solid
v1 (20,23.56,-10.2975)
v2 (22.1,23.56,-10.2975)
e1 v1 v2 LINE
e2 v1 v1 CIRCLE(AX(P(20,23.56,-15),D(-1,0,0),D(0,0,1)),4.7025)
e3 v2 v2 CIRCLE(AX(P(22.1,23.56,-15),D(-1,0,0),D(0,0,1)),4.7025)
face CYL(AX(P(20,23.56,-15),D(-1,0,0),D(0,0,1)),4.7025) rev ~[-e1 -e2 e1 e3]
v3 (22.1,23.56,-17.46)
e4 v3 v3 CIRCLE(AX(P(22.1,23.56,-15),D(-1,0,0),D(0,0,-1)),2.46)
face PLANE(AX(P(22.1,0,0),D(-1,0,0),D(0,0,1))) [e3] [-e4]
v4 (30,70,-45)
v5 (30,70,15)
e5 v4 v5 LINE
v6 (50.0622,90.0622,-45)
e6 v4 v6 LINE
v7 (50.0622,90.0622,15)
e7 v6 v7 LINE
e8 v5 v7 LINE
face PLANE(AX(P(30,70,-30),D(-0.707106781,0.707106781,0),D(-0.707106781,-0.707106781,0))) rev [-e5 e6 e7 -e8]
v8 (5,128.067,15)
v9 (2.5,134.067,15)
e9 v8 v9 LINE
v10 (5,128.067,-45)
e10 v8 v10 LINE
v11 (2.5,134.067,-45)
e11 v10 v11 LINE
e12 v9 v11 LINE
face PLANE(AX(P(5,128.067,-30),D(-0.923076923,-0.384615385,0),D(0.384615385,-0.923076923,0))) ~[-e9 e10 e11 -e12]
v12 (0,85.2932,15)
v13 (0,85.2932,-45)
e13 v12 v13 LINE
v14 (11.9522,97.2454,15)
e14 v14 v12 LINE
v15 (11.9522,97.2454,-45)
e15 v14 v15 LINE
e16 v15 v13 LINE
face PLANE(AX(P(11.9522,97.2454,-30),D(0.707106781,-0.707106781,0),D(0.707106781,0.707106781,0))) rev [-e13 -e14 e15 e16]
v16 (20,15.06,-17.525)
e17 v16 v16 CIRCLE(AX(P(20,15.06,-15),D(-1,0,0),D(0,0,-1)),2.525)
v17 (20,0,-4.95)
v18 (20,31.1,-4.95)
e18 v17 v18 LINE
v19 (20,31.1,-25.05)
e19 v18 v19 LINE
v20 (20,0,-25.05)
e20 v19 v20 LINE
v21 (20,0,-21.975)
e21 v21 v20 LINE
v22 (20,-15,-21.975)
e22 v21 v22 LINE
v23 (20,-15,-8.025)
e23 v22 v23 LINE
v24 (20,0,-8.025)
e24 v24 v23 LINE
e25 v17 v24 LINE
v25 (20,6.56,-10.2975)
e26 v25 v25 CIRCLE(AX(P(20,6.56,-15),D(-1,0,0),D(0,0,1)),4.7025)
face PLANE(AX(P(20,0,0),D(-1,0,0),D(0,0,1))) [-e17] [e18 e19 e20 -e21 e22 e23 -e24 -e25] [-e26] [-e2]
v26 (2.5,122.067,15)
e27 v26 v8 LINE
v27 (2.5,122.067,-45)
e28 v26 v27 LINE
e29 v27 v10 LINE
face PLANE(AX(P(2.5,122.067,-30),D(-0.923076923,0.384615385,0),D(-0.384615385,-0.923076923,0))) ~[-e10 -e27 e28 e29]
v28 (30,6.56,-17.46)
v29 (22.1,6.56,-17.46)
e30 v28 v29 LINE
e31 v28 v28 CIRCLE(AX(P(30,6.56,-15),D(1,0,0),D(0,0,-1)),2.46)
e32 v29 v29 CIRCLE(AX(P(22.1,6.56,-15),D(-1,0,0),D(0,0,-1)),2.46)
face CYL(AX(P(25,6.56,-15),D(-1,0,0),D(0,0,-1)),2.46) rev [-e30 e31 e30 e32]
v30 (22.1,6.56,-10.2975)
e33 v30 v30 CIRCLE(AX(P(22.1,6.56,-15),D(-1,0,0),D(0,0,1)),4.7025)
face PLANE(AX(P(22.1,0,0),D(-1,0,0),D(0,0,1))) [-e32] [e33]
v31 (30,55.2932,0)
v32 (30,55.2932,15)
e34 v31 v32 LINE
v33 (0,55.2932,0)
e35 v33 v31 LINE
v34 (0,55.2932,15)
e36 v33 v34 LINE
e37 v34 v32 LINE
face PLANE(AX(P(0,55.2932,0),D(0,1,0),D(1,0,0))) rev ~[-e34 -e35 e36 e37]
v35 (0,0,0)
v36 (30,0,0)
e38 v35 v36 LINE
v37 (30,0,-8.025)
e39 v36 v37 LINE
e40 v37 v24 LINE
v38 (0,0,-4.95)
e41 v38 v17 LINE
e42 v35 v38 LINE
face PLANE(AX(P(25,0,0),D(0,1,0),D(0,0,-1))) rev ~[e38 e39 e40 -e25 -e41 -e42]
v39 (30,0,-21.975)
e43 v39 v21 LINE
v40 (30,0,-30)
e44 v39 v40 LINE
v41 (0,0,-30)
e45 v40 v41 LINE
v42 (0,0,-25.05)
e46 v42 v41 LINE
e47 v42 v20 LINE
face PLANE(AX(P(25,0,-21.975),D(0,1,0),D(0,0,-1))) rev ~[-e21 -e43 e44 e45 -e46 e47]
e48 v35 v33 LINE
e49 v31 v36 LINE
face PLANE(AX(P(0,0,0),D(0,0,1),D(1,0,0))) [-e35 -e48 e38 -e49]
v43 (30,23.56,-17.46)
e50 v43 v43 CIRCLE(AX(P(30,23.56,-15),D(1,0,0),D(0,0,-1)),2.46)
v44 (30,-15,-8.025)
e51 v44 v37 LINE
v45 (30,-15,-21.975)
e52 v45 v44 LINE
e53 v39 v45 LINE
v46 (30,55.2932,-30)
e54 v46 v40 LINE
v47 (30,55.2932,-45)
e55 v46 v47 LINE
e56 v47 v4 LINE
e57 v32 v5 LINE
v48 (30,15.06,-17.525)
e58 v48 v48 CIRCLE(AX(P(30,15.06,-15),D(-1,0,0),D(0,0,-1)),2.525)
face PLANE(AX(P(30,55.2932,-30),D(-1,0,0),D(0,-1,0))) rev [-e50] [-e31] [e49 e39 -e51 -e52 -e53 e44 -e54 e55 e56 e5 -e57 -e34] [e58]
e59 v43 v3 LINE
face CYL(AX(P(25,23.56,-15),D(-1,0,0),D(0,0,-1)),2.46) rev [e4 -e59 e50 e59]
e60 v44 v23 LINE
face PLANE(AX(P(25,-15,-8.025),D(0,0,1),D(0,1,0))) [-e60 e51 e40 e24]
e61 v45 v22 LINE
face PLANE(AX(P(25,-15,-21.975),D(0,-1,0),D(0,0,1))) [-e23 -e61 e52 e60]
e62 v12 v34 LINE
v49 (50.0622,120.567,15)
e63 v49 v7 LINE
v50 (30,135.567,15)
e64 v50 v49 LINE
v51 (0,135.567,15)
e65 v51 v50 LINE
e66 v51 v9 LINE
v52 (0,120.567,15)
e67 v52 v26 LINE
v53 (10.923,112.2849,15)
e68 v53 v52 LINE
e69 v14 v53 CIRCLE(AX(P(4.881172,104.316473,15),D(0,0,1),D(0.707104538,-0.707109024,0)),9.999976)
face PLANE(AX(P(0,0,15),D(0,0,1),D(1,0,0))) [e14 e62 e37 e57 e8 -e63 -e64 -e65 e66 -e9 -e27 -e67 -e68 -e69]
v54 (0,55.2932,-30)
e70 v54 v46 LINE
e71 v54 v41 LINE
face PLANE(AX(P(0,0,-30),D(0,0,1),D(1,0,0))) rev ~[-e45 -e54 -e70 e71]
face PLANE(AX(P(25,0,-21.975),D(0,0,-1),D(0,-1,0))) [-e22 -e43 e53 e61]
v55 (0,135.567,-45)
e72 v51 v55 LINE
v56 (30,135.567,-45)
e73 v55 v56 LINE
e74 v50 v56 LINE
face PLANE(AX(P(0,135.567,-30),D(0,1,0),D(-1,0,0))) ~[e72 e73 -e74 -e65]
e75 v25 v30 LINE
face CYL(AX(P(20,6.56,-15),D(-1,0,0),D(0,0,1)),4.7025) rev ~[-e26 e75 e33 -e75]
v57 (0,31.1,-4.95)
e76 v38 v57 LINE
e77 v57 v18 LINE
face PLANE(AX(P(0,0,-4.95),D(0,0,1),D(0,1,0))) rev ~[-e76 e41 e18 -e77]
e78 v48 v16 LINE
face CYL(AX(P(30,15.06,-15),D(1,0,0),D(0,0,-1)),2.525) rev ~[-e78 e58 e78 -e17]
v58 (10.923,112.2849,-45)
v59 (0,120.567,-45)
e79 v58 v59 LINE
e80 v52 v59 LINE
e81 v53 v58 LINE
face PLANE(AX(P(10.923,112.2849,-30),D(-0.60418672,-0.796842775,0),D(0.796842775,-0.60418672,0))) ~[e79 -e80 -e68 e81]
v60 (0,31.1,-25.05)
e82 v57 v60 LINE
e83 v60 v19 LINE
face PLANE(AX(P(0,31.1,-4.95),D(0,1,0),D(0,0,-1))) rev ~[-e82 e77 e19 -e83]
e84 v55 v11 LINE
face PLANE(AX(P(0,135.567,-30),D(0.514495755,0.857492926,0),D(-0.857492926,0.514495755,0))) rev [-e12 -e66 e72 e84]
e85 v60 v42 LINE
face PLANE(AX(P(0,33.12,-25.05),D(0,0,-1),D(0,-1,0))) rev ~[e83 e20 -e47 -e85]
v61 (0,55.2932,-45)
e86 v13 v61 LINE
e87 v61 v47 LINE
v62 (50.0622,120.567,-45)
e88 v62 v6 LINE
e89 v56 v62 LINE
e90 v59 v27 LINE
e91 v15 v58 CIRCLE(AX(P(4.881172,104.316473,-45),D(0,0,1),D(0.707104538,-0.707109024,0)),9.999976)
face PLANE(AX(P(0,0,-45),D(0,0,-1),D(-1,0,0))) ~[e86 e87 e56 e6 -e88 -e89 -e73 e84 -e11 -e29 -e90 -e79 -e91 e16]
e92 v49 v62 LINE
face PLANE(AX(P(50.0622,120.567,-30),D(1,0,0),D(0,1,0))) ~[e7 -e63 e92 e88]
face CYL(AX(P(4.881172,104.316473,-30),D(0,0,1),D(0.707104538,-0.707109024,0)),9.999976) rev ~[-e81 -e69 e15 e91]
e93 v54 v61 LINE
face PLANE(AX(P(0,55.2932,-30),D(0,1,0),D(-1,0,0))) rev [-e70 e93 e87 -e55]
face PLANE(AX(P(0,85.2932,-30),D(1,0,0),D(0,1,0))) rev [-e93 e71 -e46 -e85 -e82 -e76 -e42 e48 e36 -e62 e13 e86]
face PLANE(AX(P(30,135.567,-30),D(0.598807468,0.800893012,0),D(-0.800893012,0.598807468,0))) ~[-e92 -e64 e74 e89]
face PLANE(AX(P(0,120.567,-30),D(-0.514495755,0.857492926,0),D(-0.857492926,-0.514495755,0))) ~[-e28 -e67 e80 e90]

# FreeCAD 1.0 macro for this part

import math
import FreeCAD as App
import Part
import Sketcher

V = App.Vector
Q = App.Units.Quantity

doc = App.newDocument("Part")
params = doc.addObject("Spreadsheet::Sheet", "Params")
for row, (alias, value) in enumerate([
    ("sketch1_width", "25 mm"),
    ("sketch1_height", "40 mm"),
    ("pad1_length", "30 mm"),
    ("sketch2_diameter", "4.92 mm"),
    ("pocket1_length", "30 mm"),
    ("sketch3_height", "20.1 mm"),
    ("sketch3_width", "33.12 mm"),
    ("pocket2_length", "20 mm"),
    ("sketch4_height", "13.95 mm"),
    ("sketch4_width", "5 mm"),
    ("pad2_length", "15 mm"),
    ("sketch5_diameter", "4.92 mm"),
    ("pocket3_length", "2.1 mm"),
    ("sketch6_diameter", "4.92 mm"),
    ("pocket4_length", "10 mm"),
    ("sketch7_diameter", "4.92 mm"),
    ("pocket5_length", "2.1 mm"),
    ("sketch8_diameter", "4.92 mm"),
    ("sketch8_width", "40 mm"),
    ("sketch8_width2", "15 mm"),
    ("sketch8_height", "30 mm"),
    ("sketch8_height2", "13.95 mm"),
    ("pad3_length", "5 mm"),
    ("sketch9_width", "30 mm"),
    ("pad4_length", "30 mm"),
    ("sketch10_diameter", "5.05 mm"),
    ("pocket6_length", "30 mm"),
    ("sketch11_width", "2.02 mm"),
    ("sketch11_height", "20.1 mm"),
    ("pad5_length", "20 mm"),
    ("sketch12_radius", "10 mm"),
    ("sketch12_width", "30 mm"),
    ("sketch12_length", "6.5 mm"),
    ("pad6_length", "30 mm"),
    ("sketch13_width", "30 mm"),
    ("sketch13_radius", "10 mm"),
    ("sketch13_length", "6.5 mm"),
    ("pad7_length", "15 mm"),
], start=1):
    params.set(f"A{row}", alias)
    params.set(f"B{row}", "=" + value)
    params.setAlias(f"B{row}", alias)

body = doc.addObject("PartDesign::Body", "Body")

# Sketch on XY plane
sketch1 = body.newObject("Sketcher::SketchObject", "Sketch")
sketch1.AttachmentSupport = (doc.getObject("XY_Plane"), [""])
sketch1.MapMode = "FlatFace"
sketch1.addGeometry(Part.LineSegment(V(0, 40, 0), V(0, 0, 0)), False)
sketch1.addGeometry(Part.LineSegment(V(0, 0, 0), V(25, 0, 0)), False)
sketch1.addGeometry(Part.LineSegment(V(25, 0, 0), V(25, 40, 0)), False)
sketch1.addGeometry(Part.LineSegment(V(25, 40, 0), V(0, 40, 0)), False)
sketch1.addConstraint(Sketcher.Constraint("Coincident", 0, 2, 1, 1))
sketch1.addConstraint(Sketcher.Constraint("Coincident", 1, 2, 2, 1))
sketch1.addConstraint(Sketcher.Constraint("Coincident", 2, 2, 3, 1))
sketch1.addConstraint(Sketcher.Constraint("Coincident", 3, 2, 0, 1))
sketch1.addConstraint(Sketcher.Constraint("Vertical", 0))
sketch1.addConstraint(Sketcher.Constraint("Horizontal", 1))
sketch1.addConstraint(Sketcher.Constraint("Vertical", 2))
sketch1.addConstraint(Sketcher.Constraint("Horizontal", 3))
sketch1.addConstraint(Sketcher.Constraint("Coincident", 0, 2, -1, 1))
sketch1.addConstraint(Sketcher.Constraint("DistanceX", 1, 1, 1, 2, Q("25 mm")))
sketch1.addConstraint(Sketcher.Constraint("DistanceY", 0, 2, 0, 1, Q("40 mm")))
sketch1.setExpression("Constraints[9]", "Params.sketch1_width")
sketch1.setExpression("Constraints[10]", "Params.sketch1_height")
pad1 = body.newObject("PartDesign::Pad", "Pad")
pad1.Profile = sketch1
pad1.setExpression("Length", "Params.pad1_length")
pad1.Reversed = True

# Sketch on YZ plane
sketch2 = body.newObject("Sketcher::SketchObject", "Sketch001")
sketch2.AttachmentSupport = (doc.getObject("YZ_Plane"), [""])
sketch2.MapMode = "FlatFace"
sketch2.AttachmentOffset = App.Placement(V(0, 0, 25), App.Rotation())
sketch2.addGeometry(Part.Circle(V(6.56, -15, 0), V(0, 0, 1), 2.46), False)
sketch2.addConstraint(Sketcher.Constraint("Diameter", 0, Q("4.92 mm")))
sketch2.addConstraint(Sketcher.Constraint("DistanceY", 0, 3, -1, 1, Q("15 mm")))
sketch2.addConstraint(Sketcher.Constraint("DistanceX", -1, 1, 0, 3, Q("6.56 mm")))
sketch2.setExpression("Constraints[0]", "Params.sketch2_diameter")
pocket1 = body.newObject("PartDesign::Pocket", "Pocket")
pocket1.Profile = sketch2
pocket1.setExpression("Length", "Params.pocket1_length")

# Sketch on YZ plane
sketch3 = body.newObject("Sketcher::SketchObject", "Sketch002")
sketch3.AttachmentSupport = (doc.getObject("YZ_Plane"), [""])
sketch3.MapMode = "FlatFace"
sketch3.addGeometry(Part.LineSegment(V(0, -25.05, 0), V(0, -4.95, 0)), False)
sketch3.addGeometry(Part.LineSegment(V(0, -4.95, 0), V(33.12, -4.95, 0)), False)
sketch3.addGeometry(Part.LineSegment(V(33.12, -4.95, 0), V(33.12, -25.05, 0)), False)
sketch3.addGeometry(Part.LineSegment(V(33.12, -25.05, 0), V(0, -25.05, 0)), False)
sketch3.addConstraint(Sketcher.Constraint("Coincident", 0, 2, 1, 1))
sketch3.addConstraint(Sketcher.Constraint("Coincident", 1, 2, 2, 1))
sketch3.addConstraint(Sketcher.Constraint("Coincident", 2, 2, 3, 1))
sketch3.addConstraint(Sketcher.Constraint("Coincident", 3, 2, 0, 1))
sketch3.addConstraint(Sketcher.Constraint("Vertical", 0))
sketch3.addConstraint(Sketcher.Constraint("Horizontal", 1))
sketch3.addConstraint(Sketcher.Constraint("Vertical", 2))
sketch3.addConstraint(Sketcher.Constraint("Horizontal", 3))
sketch3.addConstraint(Sketcher.Constraint("PointOnObject", 0, 2, -2))
sketch3.addConstraint(Sketcher.Constraint("DistanceY", 0, 1, 0, 2, Q("20.1 mm")))
sketch3.addConstraint(Sketcher.Constraint("DistanceX", 1, 1, 1, 2, Q("33.12 mm")))
sketch3.addConstraint(Sketcher.Constraint("DistanceY", 0, 2, -1, 1, Q("4.95 mm")))
sketch3.setExpression("Constraints[9]", "Params.sketch3_height")
sketch3.setExpression("Constraints[10]", "Params.sketch3_width")
pocket2 = body.newObject("PartDesign::Pocket", "Pocket001")
pocket2.Profile = sketch3
pocket2.setExpression("Length", "Params.pocket2_length")
pocket2.Reversed = True

# Sketch on XZ plane
sketch4 = body.newObject("Sketcher::SketchObject", "Sketch003")
sketch4.AttachmentSupport = (doc.getObject("XZ_Plane"), [""])
sketch4.MapMode = "FlatFace"
sketch4.addGeometry(Part.LineSegment(V(25, -8.025, 0), V(20, -8.025, 0)), False)
sketch4.addGeometry(Part.LineSegment(V(20, -8.025, 0), V(20, -21.975, 0)), False)
sketch4.addGeometry(Part.LineSegment(V(20, -21.975, 0), V(25, -21.975, 0)), False)
sketch4.addGeometry(Part.LineSegment(V(25, -21.975, 0), V(25, -8.025, 0)), False)
sketch4.addConstraint(Sketcher.Constraint("Coincident", 0, 2, 1, 1))
sketch4.addConstraint(Sketcher.Constraint("Coincident", 1, 2, 2, 1))
sketch4.addConstraint(Sketcher.Constraint("Coincident", 2, 2, 3, 1))
sketch4.addConstraint(Sketcher.Constraint("Coincident", 3, 2, 0, 1))
sketch4.addConstraint(Sketcher.Constraint("Horizontal", 0))
sketch4.addConstraint(Sketcher.Constraint("Vertical", 1))
sketch4.addConstraint(Sketcher.Constraint("Horizontal", 2))
sketch4.addConstraint(Sketcher.Constraint("Vertical", 3))
sketch4.addConstraint(Sketcher.Constraint("DistanceY", 1, 2, 1, 1, Q("13.95 mm")))
sketch4.addConstraint(Sketcher.Constraint("DistanceX", 0, 2, 0, 1, Q("5 mm")))
sketch4.addConstraint(Sketcher.Constraint("DistanceX", -1, 1, 0, 2, Q("20 mm")))
sketch4.addConstraint(Sketcher.Constraint("DistanceY", 0, 2, -1, 1, Q("8.025 mm")))
sketch4.setExpression("Constraints[8]", "Params.sketch4_height")
sketch4.setExpression("Constraints[9]", "Params.sketch4_width")
pad2 = body.newObject("PartDesign::Pad", "Pad001")
pad2.Profile = sketch4
pad2.setExpression("Length", "Params.pad2_length")

# Sketch on YZ plane
sketch5 = body.newObject("Sketcher::SketchObject", "Sketch004")
sketch5.AttachmentSupport = (doc.getObject("YZ_Plane"), [""])
sketch5.MapMode = "FlatFace"
sketch5.AttachmentOffset = App.Placement(V(0, 0, 20), App.Rotation())
sketch5.addGeometry(Part.Circle(V(6.56, -15, 0), V(0, 0, 1), 4.7025), False)
sketch5.addGeometry(Part.Circle(V(6.56, -15, 0), V(0, 0, 1), 2.46), False)
sketch5.addConstraint(Sketcher.Constraint("Coincident", 1, 3, 0, 3))
sketch5.addConstraint(Sketcher.Constraint("Diameter", 0, Q("9.405 mm")))
sketch5.addConstraint(Sketcher.Constraint("Diameter", 1, Q("4.92 mm")))
sketch5.addConstraint(Sketcher.Constraint("DistanceY", 0, 3, -1, 1, Q("15 mm")))
sketch5.addConstraint(Sketcher.Constraint("DistanceX", -1, 1, 0, 3, Q("6.56 mm")))
sketch5.setExpression("Constraints[2]", "Params.sketch5_diameter")
pocket3 = body.newObject("PartDesign::Pocket", "Pocket002")
pocket3.Profile = sketch5
pocket3.setExpression("Length", "Params.pocket3_length")
pocket3.Reversed = True

# Sketch on YZ plane
sketch6 = body.newObject("Sketcher::SketchObject", "Sketch005")
sketch6.AttachmentSupport = (doc.getObject("YZ_Plane"), [""])
sketch6.MapMode = "FlatFace"
sketch6.AttachmentOffset = App.Placement(V(0, 0, 25), App.Rotation())
sketch6.addGeometry(Part.Circle(V(23.56, -15, 0), V(0, 0, 1), 2.46), False)
sketch6.addConstraint(Sketcher.Constraint("Diameter", 0, Q("4.92 mm")))
sketch6.addConstraint(Sketcher.Constraint("DistanceY", 0, 3, -1, 1, Q("15 mm")))
sketch6.addConstraint(Sketcher.Constraint("DistanceX", -1, 1, 0, 3, Q("23.56 mm")))
sketch6.setExpression("Constraints[0]", "Params.sketch6_diameter")
pocket4 = body.newObject("PartDesign::Pocket", "Pocket003")
pocket4.Profile = sketch6
pocket4.setExpression("Length", "Params.pocket4_length")

# Sketch on YZ plane
sketch7 = body.newObject("Sketcher::SketchObject", "Sketch006")
sketch7.AttachmentSupport = (doc.getObject("YZ_Plane"), [""])
sketch7.MapMode = "FlatFace"
sketch7.AttachmentOffset = App.Placement(V(0, 0, 20), App.Rotation())
sketch7.addGeometry(Part.Circle(V(23.56, -15, 0), V(0, 0, 1), 4.7025), False)
sketch7.addGeometry(Part.Circle(V(23.56, -15, 0), V(0, 0, 1), 2.46), False)
sketch7.addConstraint(Sketcher.Constraint("Coincident", 1, 3, 0, 3))
sketch7.addConstraint(Sketcher.Constraint("Diameter", 0, Q("9.405 mm")))
sketch7.addConstraint(Sketcher.Constraint("Diameter", 1, Q("4.92 mm")))
sketch7.addConstraint(Sketcher.Constraint("DistanceY", 0, 3, -1, 1, Q("15 mm")))
sketch7.addConstraint(Sketcher.Constraint("DistanceX", -1, 1, 0, 3, Q("23.56 mm")))
sketch7.setExpression("Constraints[2]", "Params.sketch7_diameter")
pocket5 = body.newObject("PartDesign::Pocket", "Pocket004")
pocket5.Profile = sketch7
pocket5.setExpression("Length", "Params.pocket5_length")
pocket5.Reversed = True

# Sketch on YZ plane
sketch8 = body.newObject("Sketcher::SketchObject", "Sketch007")
sketch8.AttachmentSupport = (doc.getObject("YZ_Plane"), [""])
sketch8.MapMode = "FlatFace"
sketch8.AttachmentOffset = App.Placement(V(0, 0, 25), App.Rotation())
sketch8.addGeometry(Part.LineSegment(V(0, -30, 0), V(40, -30, 0)), False)
sketch8.addGeometry(Part.LineSegment(V(40, -30, 0), V(40, 0, 0)), False)
sketch8.addGeometry(Part.LineSegment(V(40, 0, 0), V(0, 0, 0)), False)
sketch8.addGeometry(Part.LineSegment(V(0, 0, 0), V(0, -8.025, 0)), False)
sketch8.addGeometry(Part.LineSegment(V(0, -8.025, 0), V(-15, -8.025, 0)), False)
sketch8.addGeometry(Part.LineSegment(V(-15, -8.025, 0), V(-15, -21.975, 0)), False)
sketch8.addGeometry(Part.LineSegment(V(-15, -21.975, 0), V(0, -21.975, 0)), False)
sketch8.addGeometry(Part.LineSegment(V(0, -21.975, 0), V(0, -30, 0)), False)
sketch8.addGeometry(Part.Circle(V(6.56, -15, 0), V(0, 0, 1), 2.46), False)
sketch8.addGeometry(Part.Circle(V(23.56, -15, 0), V(0, 0, 1), 2.46), False)
sketch8.addConstraint(Sketcher.Constraint("Coincident", 0, 2, 1, 1))
sketch8.addConstraint(Sketcher.Constraint("Coincident", 1, 2, 2, 1))
sketch8.addConstraint(Sketcher.Constraint("Coincident", 2, 2, 3, 1))
sketch8.addConstraint(Sketcher.Constraint("Coincident", 3, 2, 4, 1))
sketch8.addConstraint(Sketcher.Constraint("Coincident", 4, 2, 5, 1))
sketch8.addConstraint(Sketcher.Constraint("Coincident", 5, 2, 6, 1))
sketch8.addConstraint(Sketcher.Constraint("Coincident", 6, 2, 7, 1))
sketch8.addConstraint(Sketcher.Constraint("Coincident", 7, 2, 0, 1))
sketch8.addConstraint(Sketcher.Constraint("Horizontal", 0))
sketch8.addConstraint(Sketcher.Constraint("Vertical", 1))
sketch8.addConstraint(Sketcher.Constraint("Horizontal", 2))
sketch8.addConstraint(Sketcher.Constraint("Vertical", 3))
sketch8.addConstraint(Sketcher.Constraint("Horizontal", 4))
sketch8.addConstraint(Sketcher.Constraint("Vertical", 5))
sketch8.addConstraint(Sketcher.Constraint("Horizontal", 6))
sketch8.addConstraint(Sketcher.Constraint("Vertical", 7))
sketch8.addConstraint(Sketcher.Constraint("Coincident", 2, 2, -1, 1))
sketch8.addConstraint(Sketcher.Constraint("Equal", 8, 9))
sketch8.addConstraint(Sketcher.Constraint("PointOnObject", 6, 2, -2))
sketch8.addConstraint(Sketcher.Constraint("Horizontal", 8, 3, 9, 3))
sketch8.addConstraint(Sketcher.Constraint("Equal", 3, 7))
sketch8.addConstraint(Sketcher.Constraint("Diameter", 8, Q("4.92 mm")))
sketch8.addConstraint(Sketcher.Constraint("DistanceX", 0, 1, 0, 2, Q("40 mm")))
sketch8.addConstraint(Sketcher.Constraint("DistanceX", 4, 2, 4, 1, Q("15 mm")))
sketch8.addConstraint(Sketcher.Constraint("DistanceY", 1, 1, 1, 2, Q("30 mm")))
sketch8.addConstraint(Sketcher.Constraint("DistanceY", 8, 3, -1, 1, Q("15 mm")))
sketch8.addConstraint(Sketcher.Constraint("DistanceX", 8, 3, 9, 3, Q("17 mm")))
sketch8.addConstraint(Sketcher.Constraint("DistanceY", 5, 2, 5, 1, Q("13.95 mm")))
sketch8.addConstraint(Sketcher.Constraint("DistanceX", -1, 1, 8, 3, Q("6.56 mm")))
sketch8.setExpression("Constraints[21]", "Params.sketch8_diameter")
sketch8.setExpression("Constraints[22]", "Params.sketch8_width")
sketch8.setExpression("Constraints[23]", "Params.sketch8_width2")
sketch8.setExpression("Constraints[24]", "Params.sketch8_height")
sketch8.setExpression("Constraints[27]", "Params.sketch8_height2")
pad3 = body.newObject("PartDesign::Pad", "Pad002")
pad3.Profile = sketch8
pad3.setExpression("Length", "Params.pad3_length")

# Sketch on XZ plane
sketch9 = body.newObject("Sketcher::SketchObject", "Sketch008")
sketch9.AttachmentSupport = (doc.getObject("XZ_Plane"), [""])
sketch9.MapMode = "FlatFace"
sketch9.AttachmentOffset = App.Placement(V(0, 0, -40), App.Rotation())
sketch9.addGeometry(Part.LineSegment(V(30, -30, 0), V(0, -30, 0)), False)
sketch9.addGeometry(Part.LineSegment(V(0, -30, 0), V(0, 0, 0)), False)
sketch9.addGeometry(Part.LineSegment(V(0, 0, 0), V(30, 0, 0)), False)
sketch9.addGeometry(Part.LineSegment(V(30, 0, 0), V(30, -30, 0)), False)
sketch9.addConstraint(Sketcher.Constraint("Coincident", 0, 2, 1, 1))
sketch9.addConstraint(Sketcher.Constraint("Coincident", 1, 2, 2, 1))
sketch9.addConstraint(Sketcher.Constraint("Coincident", 2, 2, 3, 1))
sketch9.addConstraint(Sketcher.Constraint("Coincident", 3, 2, 0, 1))
sketch9.addConstraint(Sketcher.Constraint("Horizontal", 0))
sketch9.addConstraint(Sketcher.Constraint("Vertical", 1))
sketch9.addConstraint(Sketcher.Constraint("Horizontal", 2))
sketch9.addConstraint(Sketcher.Constraint("Vertical", 3))
sketch9.addConstraint(Sketcher.Constraint("Coincident", 1, 2, -1, 1))
sketch9.addConstraint(Sketcher.Constraint("Equal", 2, 1))
sketch9.addConstraint(Sketcher.Constraint("DistanceX", 0, 2, 0, 1, Q("30 mm")))
sketch9.setExpression("Constraints[10]", "Params.sketch9_width")
pad4 = body.newObject("PartDesign::Pad", "Pad003")
pad4.Profile = sketch9
pad4.setExpression("Length", "Params.pad4_length")
pad4.Reversed = True

# Sketch on YZ plane
sketch10 = body.newObject("Sketcher::SketchObject", "Sketch009")
sketch10.AttachmentSupport = (doc.getObject("YZ_Plane"), [""])
sketch10.MapMode = "FlatFace"
sketch10.AttachmentOffset = App.Placement(V(0, 0, 30), App.Rotation())
sketch10.addGeometry(Part.Circle(V(15.06, -15, 0), V(0, 0, 1), 2.525), False)
sketch10.addConstraint(Sketcher.Constraint("Diameter", 0, Q("5.05 mm")))
sketch10.addConstraint(Sketcher.Constraint("DistanceY", 0, 3, -1, 1, Q("15 mm")))
sketch10.addConstraint(Sketcher.Constraint("DistanceX", -1, 1, 0, 3, Q("15.06 mm")))
sketch10.setExpression("Constraints[0]", "Params.sketch10_diameter")
pocket6 = body.newObject("PartDesign::Pocket", "Pocket005")
pocket6.Profile = sketch10
pocket6.setExpression("Length", "Params.pocket6_length")

# Sketch on YZ plane
sketch11 = body.newObject("Sketcher::SketchObject", "Sketch010")
sketch11.AttachmentSupport = (doc.getObject("YZ_Plane"), [""])
sketch11.MapMode = "FlatFace"
sketch11.addGeometry(Part.LineSegment(V(33.12, -4.95, 0), V(33.12, -25.05, 0)), False)
sketch11.addGeometry(Part.LineSegment(V(33.12, -25.05, 0), V(31.1, -25.05, 0)), False)
sketch11.addGeometry(Part.LineSegment(V(31.1, -25.05, 0), V(31.1, -4.95, 0)), False)
sketch11.addGeometry(Part.LineSegment(V(31.1, -4.95, 0), V(33.12, -4.95, 0)), False)
sketch11.addConstraint(Sketcher.Constraint("Coincident", 0, 2, 1, 1))
sketch11.addConstraint(Sketcher.Constraint("Coincident", 1, 2, 2, 1))
sketch11.addConstraint(Sketcher.Constraint("Coincident", 2, 2, 3, 1))
sketch11.addConstraint(Sketcher.Constraint("Coincident", 3, 2, 0, 1))
sketch11.addConstraint(Sketcher.Constraint("Vertical", 0))
sketch11.addConstraint(Sketcher.Constraint("Horizontal", 1))
sketch11.addConstraint(Sketcher.Constraint("Vertical", 2))
sketch11.addConstraint(Sketcher.Constraint("Horizontal", 3))
sketch11.addConstraint(Sketcher.Constraint("DistanceX", 1, 2, 1, 1, Q("2.02 mm")))
sketch11.addConstraint(Sketcher.Constraint("DistanceY", 0, 2, 0, 1, Q("20.1 mm")))
sketch11.addConstraint(Sketcher.Constraint("DistanceX", -1, 1, 1, 2, Q("31.1 mm")))
sketch11.addConstraint(Sketcher.Constraint("DistanceY", 0, 2, -1, 1, Q("25.05 mm")))
sketch11.setExpression("Constraints[8]", "Params.sketch11_width")
sketch11.setExpression("Constraints[9]", "Params.sketch11_height")
pad5 = body.newObject("PartDesign::Pad", "Pad004")
pad5.Profile = sketch11
pad5.setExpression("Length", "Params.pad5_length")

# Sketch on XY plane
sketch12 = body.newObject("Sketcher::SketchObject", "Sketch011")
sketch12.AttachmentSupport = (doc.getObject("XY_Plane"), [""])
sketch12.MapMode = "FlatFace"
sketch12.addGeometry(Part.LineSegment(V(0, 85.2932, 0), V(0, 70, 0)), False)
sketch12.addGeometry(Part.LineSegment(V(0, 70, 0), V(30, 70, 0)), False)
sketch12.addGeometry(Part.LineSegment(V(30, 70, 0), V(50.0622, 90.0622, 0)), False)
sketch12.addGeometry(Part.LineSegment(V(50.0622, 90.0622, 0), V(50.0622, 120.567, 0)), False)
sketch12.addGeometry(Part.LineSegment(V(50.0622, 120.567, 0), V(30, 135.567, 0)), False)
sketch12.addGeometry(Part.LineSegment(V(30, 135.567, 0), V(0, 135.567, 0)), False)
sketch12.addGeometry(Part.LineSegment(V(0, 135.567, 0), V(2.5, 134.067, 0)), False)
sketch12.addGeometry(Part.LineSegment(V(2.5, 134.067, 0), V(5, 128.067, 0)), False)
sketch12.addGeometry(Part.LineSegment(V(5, 128.067, 0), V(2.5, 122.067, 0)), False)
sketch12.addGeometry(Part.LineSegment(V(2.5, 122.067, 0), V(0, 120.567, 0)), False)
sketch12.addGeometry(Part.LineSegment(V(0, 120.567, 0), V(10.923, 112.2849, 0)), False)
sketch12.addGeometry(Part.ArcOfCircle(Part.Circle(V(4.8811, 104.3165, 0), V(0, 0, 1), 10.000046), math.radians(-45), math.radians(52.829413)), False)
sketch12.addGeometry(Part.LineSegment(V(11.9522, 97.2454, 0), V(0, 85.2932, 0)), False)
sketch12.addConstraint(Sketcher.Constraint("Coincident", 0, 2, 1, 1))
sketch12.addConstraint(Sketcher.Constraint("Coincident", 1, 2, 2, 1))
sketch12.addConstraint(Sketcher.Constraint("Coincident", 2, 2, 3, 1))
sketch12.addConstraint(Sketcher.Constraint("Coincident", 3, 2, 4, 1))
sketch12.addConstraint(Sketcher.Constraint("Coincident", 4, 2, 5, 1))
sketch12.addConstraint(Sketcher.Constraint("Coincident", 5, 2, 6, 1))
sketch12.addConstraint(Sketcher.Constraint("Coincident", 6, 2, 7, 1))
sketch12.addConstraint(Sketcher.Constraint("Coincident", 7, 2, 8, 1))
sketch12.addConstraint(Sketcher.Constraint("Coincident", 8, 2, 9, 1))
sketch12.addConstraint(Sketcher.Constraint("Coincident", 9, 2, 10, 1))
sketch12.addConstraint(Sketcher.Constraint("Tangent", 10, 2, 11, 2))
sketch12.addConstraint(Sketcher.Constraint("Tangent", 11, 1, 12, 1))
sketch12.addConstraint(Sketcher.Constraint("Coincident", 12, 2, 0, 1))
sketch12.addConstraint(Sketcher.Constraint("Vertical", 0))
sketch12.addConstraint(Sketcher.Constraint("Horizontal", 1))
sketch12.addConstraint(Sketcher.Constraint("Vertical", 3))
sketch12.addConstraint(Sketcher.Constraint("Horizontal", 5))
sketch12.addConstraint(Sketcher.Constraint("PointOnObject", 0, 2, -2))
sketch12.addConstraint(Sketcher.Constraint("PointOnObject", 5, 2, -2))
sketch12.addConstraint(Sketcher.Constraint("PointOnObject", 9, 2, -2))
sketch12.addConstraint(Sketcher.Constraint("Parallel", 2, 12))
sketch12.addConstraint(Sketcher.Constraint("Horizontal", 3, 2, 9, 2))
sketch12.addConstraint(Sketcher.Constraint("Vertical", 1, 2, 4, 2))
sketch12.addConstraint(Sketcher.Constraint("Vertical", 6, 2, 8, 2))
sketch12.addConstraint(Sketcher.Constraint("Equal", 7, 8))
sketch12.addConstraint(Sketcher.Constraint("Equal", 6, 9))
sketch12.addConstraint(Sketcher.Constraint("Radius", 11, Q("10 mm")))
sketch12.addConstraint(Sketcher.Constraint("DistanceX", 1, 1, 1, 2, Q("30 mm")))
sketch12.addConstraint(Sketcher.Constraint("Angle", 2, Q("45 deg")))
sketch12.addConstraint(Sketcher.Constraint("DistanceY", -1, 1, 0, 2, Q("70 mm")))
sketch12.addConstraint(Sketcher.Constraint("DistanceX", -1, 1, 7, 2, Q("5 mm")))
sketch12.addConstraint(Sketcher.Constraint("DistanceY", 3, 2, 4, 2, Q("15 mm")))
sketch12.addConstraint(Sketcher.Constraint("DistanceY", 7, 2, 6, 2, Q("6 mm")))
sketch12.addConstraint(Sketcher.Constraint("Distance", 7, Q("6.5 mm")))
sketch12.addConstraint(Sketcher.Constraint("Angle", 10, Q("-37.1703 deg")))
sketch12.addConstraint(Sketcher.Constraint("Distance", 12, Q("16.903 mm")))
sketch12.addConstraint(Sketcher.Constraint("DistanceY", 0, 2, 0, 1, Q("15.2932 mm")))
sketch12.addConstraint(Sketcher.Constraint("DistanceY", 3, 1, 3, 2, Q("30.5048 mm")))
sketch12.setExpression("Constraints[26]", "Params.sketch12_radius")
sketch12.setExpression("Constraints[27]", "Params.sketch12_width")
sketch12.setExpression("Constraints[33]", "Params.sketch12_length")
pad6 = body.newObject("PartDesign::Pad", "Pad005")
pad6.Profile = sketch12
pad6.setExpression("Length", "Params.pad6_length")
pad6.Reversed = True

# Sketch on XY plane
sketch13 = body.newObject("Sketcher::SketchObject", "Sketch012")
sketch13.AttachmentSupport = (doc.getObject("XY_Plane"), [""])
sketch13.MapMode = "FlatFace"
sketch13.addGeometry(Part.LineSegment(V(0, 55.2932, 0), V(30, 55.2932, 0)), False)
sketch13.addGeometry(Part.LineSegment(V(30, 55.2932, 0), V(30, 70, 0)), False)
sketch13.addGeometry(Part.LineSegment(V(30, 70, 0), V(50.0622, 90.0622, 0)), False)
sketch13.addGeometry(Part.LineSegment(V(50.0622, 90.0622, 0), V(50.0622, 120.567, 0)), False)
sketch13.addGeometry(Part.LineSegment(V(50.0622, 120.567, 0), V(30, 135.567, 0)), False)
sketch13.addGeometry(Part.LineSegment(V(30, 135.567, 0), V(0, 135.567, 0)), False)
sketch13.addGeometry(Part.LineSegment(V(0, 135.567, 0), V(2.5, 134.067, 0)), False)
sketch13.addGeometry(Part.LineSegment(V(2.5, 134.067, 0), V(5, 128.067, 0)), False)
sketch13.addGeometry(Part.LineSegment(V(5, 128.067, 0), V(2.5, 122.067, 0)), False)
sketch13.addGeometry(Part.LineSegment(V(2.5, 122.067, 0), V(0, 120.567, 0)), False)
sketch13.addGeometry(Part.LineSegment(V(0, 120.567, 0), V(10.923, 112.2849, 0)), False)
sketch13.addGeometry(Part.ArcOfCircle(Part.Circle(V(4.8811, 104.3165, 0), V(0, 0, 1), 10.000046), math.radians(-45), math.radians(52.829413)), False)
sketch13.addGeometry(Part.LineSegment(V(11.9522, 97.2454, 0), V(0, 85.2932, 0)), False)
sketch13.addGeometry(Part.LineSegment(V(0, 85.2932, 0), V(0, 55.2932, 0)), False)
sketch13.addConstraint(Sketcher.Constraint("Coincident", 0, 2, 1, 1))
sketch13.addConstraint(Sketcher.Constraint("Coincident", 1, 2, 2, 1))
sketch13.addConstraint(Sketcher.Constraint("Coincident", 2, 2, 3, 1))
sketch13.addConstraint(Sketcher.Constraint("Coincident", 3, 2, 4, 1))
sketch13.addConstraint(Sketcher.Constraint("Coincident", 4, 2, 5, 1))
sketch13.addConstraint(Sketcher.Constraint("Coincident", 5, 2, 6, 1))
sketch13.addConstraint(Sketcher.Constraint("Coincident", 6, 2, 7, 1))
sketch13.addConstraint(Sketcher.Constraint("Coincident", 7, 2, 8, 1))
sketch13.addConstraint(Sketcher.Constraint("Coincident", 8, 2, 9, 1))
sketch13.addConstraint(Sketcher.Constraint("Coincident", 9, 2, 10, 1))
sketch13.addConstraint(Sketcher.Constraint("Tangent", 10, 2, 11, 2))
sketch13.addConstraint(Sketcher.Constraint("Tangent", 11, 1, 12, 1))
sketch13.addConstraint(Sketcher.Constraint("Coincident", 12, 2, 13, 1))
sketch13.addConstraint(Sketcher.Constraint("Coincident", 13, 2, 0, 1))
sketch13.addConstraint(Sketcher.Constraint("Horizontal", 0))
sketch13.addConstraint(Sketcher.Constraint("Vertical", 1))
sketch13.addConstraint(Sketcher.Constraint("Vertical", 3))
sketch13.addConstraint(Sketcher.Constraint("Horizontal", 5))
sketch13.addConstraint(Sketcher.Constraint("Vertical", 13))
sketch13.addConstraint(Sketcher.Constraint("PointOnObject", 5, 2, -2))
sketch13.addConstraint(Sketcher.Constraint("PointOnObject", 9, 2, -2))
sketch13.addConstraint(Sketcher.Constraint("PointOnObject", 12, 2, -2))
sketch13.addConstraint(Sketcher.Constraint("Parallel", 2, 12))
sketch13.addConstraint(Sketcher.Constraint("Horizontal", 3, 2, 9, 2))
sketch13.addConstraint(Sketcher.Constraint("Vertical", 1, 2, 4, 2))
sketch13.addConstraint(Sketcher.Constraint("Vertical", 6, 2, 8, 2))
sketch13.addConstraint(Sketcher.Constraint("Equal", 5, 13))
sketch13.addConstraint(Sketcher.Constraint("Equal", 7, 8))
sketch13.addConstraint(Sketcher.Constraint("Equal", 6, 9))
sketch13.addConstraint(Sketcher.Constraint("DistanceX", 0, 1, 0, 2, Q("30 mm")))
sketch13.addConstraint(Sketcher.Constraint("Radius", 11, Q("10 mm")))
sketch13.addConstraint(Sketcher.Constraint("Angle", 2, Q("45 deg")))
sketch13.addConstraint(Sketcher.Constraint("DistanceY", -1, 1, 1, 2, Q("70 mm")))
sketch13.addConstraint(Sketcher.Constraint("DistanceX", -1, 1, 7, 2, Q("5 mm")))
sketch13.addConstraint(Sketcher.Constraint("DistanceY", 3, 2, 4, 2, Q("15 mm")))
sketch13.addConstraint(Sketcher.Constraint("DistanceY", 7, 2, 6, 2, Q("6 mm")))
sketch13.addConstraint(Sketcher.Constraint("Distance", 7, Q("6.5 mm")))
sketch13.addConstraint(Sketcher.Constraint("Angle", 10, Q("-37.1703 deg")))
sketch13.addConstraint(Sketcher.Constraint("Distance", 12, Q("16.903 mm")))
sketch13.addConstraint(Sketcher.Constraint("DistanceY", 1, 1, 1, 2, Q("14.7068 mm")))
sketch13.addConstraint(Sketcher.Constraint("DistanceY", 3, 1, 3, 2, Q("30.5048 mm")))
sketch13.setExpression("Constraints[29]", "Params.sketch13_width")
sketch13.setExpression("Constraints[30]", "Params.sketch13_radius")
sketch13.setExpression("Constraints[36]", "Params.sketch13_length")
pad7 = body.newObject("PartDesign::Pad", "Pad006")
pad7.Profile = sketch13
pad7.setExpression("Length", "Params.pad7_length")
doc.recompute()

datumplane = body.newObject("PartDesign::Plane", "DatumPlane")
datumplane.AttachmentSupport = (doc.getObject("XY_Plane"), [""])
datumplane.MapMode = "FlatFace"
datumplane.AttachmentOffset = App.Placement(V(0, 0, -15), App.Rotation())
mirrored = body.newObject("PartDesign::Mirrored", "Mirrored")
mirrored.Originals = [pad7]
mirrored.MirrorPlane = (datumplane, [""])
body.Tip = mirrored

doc.recompute()
